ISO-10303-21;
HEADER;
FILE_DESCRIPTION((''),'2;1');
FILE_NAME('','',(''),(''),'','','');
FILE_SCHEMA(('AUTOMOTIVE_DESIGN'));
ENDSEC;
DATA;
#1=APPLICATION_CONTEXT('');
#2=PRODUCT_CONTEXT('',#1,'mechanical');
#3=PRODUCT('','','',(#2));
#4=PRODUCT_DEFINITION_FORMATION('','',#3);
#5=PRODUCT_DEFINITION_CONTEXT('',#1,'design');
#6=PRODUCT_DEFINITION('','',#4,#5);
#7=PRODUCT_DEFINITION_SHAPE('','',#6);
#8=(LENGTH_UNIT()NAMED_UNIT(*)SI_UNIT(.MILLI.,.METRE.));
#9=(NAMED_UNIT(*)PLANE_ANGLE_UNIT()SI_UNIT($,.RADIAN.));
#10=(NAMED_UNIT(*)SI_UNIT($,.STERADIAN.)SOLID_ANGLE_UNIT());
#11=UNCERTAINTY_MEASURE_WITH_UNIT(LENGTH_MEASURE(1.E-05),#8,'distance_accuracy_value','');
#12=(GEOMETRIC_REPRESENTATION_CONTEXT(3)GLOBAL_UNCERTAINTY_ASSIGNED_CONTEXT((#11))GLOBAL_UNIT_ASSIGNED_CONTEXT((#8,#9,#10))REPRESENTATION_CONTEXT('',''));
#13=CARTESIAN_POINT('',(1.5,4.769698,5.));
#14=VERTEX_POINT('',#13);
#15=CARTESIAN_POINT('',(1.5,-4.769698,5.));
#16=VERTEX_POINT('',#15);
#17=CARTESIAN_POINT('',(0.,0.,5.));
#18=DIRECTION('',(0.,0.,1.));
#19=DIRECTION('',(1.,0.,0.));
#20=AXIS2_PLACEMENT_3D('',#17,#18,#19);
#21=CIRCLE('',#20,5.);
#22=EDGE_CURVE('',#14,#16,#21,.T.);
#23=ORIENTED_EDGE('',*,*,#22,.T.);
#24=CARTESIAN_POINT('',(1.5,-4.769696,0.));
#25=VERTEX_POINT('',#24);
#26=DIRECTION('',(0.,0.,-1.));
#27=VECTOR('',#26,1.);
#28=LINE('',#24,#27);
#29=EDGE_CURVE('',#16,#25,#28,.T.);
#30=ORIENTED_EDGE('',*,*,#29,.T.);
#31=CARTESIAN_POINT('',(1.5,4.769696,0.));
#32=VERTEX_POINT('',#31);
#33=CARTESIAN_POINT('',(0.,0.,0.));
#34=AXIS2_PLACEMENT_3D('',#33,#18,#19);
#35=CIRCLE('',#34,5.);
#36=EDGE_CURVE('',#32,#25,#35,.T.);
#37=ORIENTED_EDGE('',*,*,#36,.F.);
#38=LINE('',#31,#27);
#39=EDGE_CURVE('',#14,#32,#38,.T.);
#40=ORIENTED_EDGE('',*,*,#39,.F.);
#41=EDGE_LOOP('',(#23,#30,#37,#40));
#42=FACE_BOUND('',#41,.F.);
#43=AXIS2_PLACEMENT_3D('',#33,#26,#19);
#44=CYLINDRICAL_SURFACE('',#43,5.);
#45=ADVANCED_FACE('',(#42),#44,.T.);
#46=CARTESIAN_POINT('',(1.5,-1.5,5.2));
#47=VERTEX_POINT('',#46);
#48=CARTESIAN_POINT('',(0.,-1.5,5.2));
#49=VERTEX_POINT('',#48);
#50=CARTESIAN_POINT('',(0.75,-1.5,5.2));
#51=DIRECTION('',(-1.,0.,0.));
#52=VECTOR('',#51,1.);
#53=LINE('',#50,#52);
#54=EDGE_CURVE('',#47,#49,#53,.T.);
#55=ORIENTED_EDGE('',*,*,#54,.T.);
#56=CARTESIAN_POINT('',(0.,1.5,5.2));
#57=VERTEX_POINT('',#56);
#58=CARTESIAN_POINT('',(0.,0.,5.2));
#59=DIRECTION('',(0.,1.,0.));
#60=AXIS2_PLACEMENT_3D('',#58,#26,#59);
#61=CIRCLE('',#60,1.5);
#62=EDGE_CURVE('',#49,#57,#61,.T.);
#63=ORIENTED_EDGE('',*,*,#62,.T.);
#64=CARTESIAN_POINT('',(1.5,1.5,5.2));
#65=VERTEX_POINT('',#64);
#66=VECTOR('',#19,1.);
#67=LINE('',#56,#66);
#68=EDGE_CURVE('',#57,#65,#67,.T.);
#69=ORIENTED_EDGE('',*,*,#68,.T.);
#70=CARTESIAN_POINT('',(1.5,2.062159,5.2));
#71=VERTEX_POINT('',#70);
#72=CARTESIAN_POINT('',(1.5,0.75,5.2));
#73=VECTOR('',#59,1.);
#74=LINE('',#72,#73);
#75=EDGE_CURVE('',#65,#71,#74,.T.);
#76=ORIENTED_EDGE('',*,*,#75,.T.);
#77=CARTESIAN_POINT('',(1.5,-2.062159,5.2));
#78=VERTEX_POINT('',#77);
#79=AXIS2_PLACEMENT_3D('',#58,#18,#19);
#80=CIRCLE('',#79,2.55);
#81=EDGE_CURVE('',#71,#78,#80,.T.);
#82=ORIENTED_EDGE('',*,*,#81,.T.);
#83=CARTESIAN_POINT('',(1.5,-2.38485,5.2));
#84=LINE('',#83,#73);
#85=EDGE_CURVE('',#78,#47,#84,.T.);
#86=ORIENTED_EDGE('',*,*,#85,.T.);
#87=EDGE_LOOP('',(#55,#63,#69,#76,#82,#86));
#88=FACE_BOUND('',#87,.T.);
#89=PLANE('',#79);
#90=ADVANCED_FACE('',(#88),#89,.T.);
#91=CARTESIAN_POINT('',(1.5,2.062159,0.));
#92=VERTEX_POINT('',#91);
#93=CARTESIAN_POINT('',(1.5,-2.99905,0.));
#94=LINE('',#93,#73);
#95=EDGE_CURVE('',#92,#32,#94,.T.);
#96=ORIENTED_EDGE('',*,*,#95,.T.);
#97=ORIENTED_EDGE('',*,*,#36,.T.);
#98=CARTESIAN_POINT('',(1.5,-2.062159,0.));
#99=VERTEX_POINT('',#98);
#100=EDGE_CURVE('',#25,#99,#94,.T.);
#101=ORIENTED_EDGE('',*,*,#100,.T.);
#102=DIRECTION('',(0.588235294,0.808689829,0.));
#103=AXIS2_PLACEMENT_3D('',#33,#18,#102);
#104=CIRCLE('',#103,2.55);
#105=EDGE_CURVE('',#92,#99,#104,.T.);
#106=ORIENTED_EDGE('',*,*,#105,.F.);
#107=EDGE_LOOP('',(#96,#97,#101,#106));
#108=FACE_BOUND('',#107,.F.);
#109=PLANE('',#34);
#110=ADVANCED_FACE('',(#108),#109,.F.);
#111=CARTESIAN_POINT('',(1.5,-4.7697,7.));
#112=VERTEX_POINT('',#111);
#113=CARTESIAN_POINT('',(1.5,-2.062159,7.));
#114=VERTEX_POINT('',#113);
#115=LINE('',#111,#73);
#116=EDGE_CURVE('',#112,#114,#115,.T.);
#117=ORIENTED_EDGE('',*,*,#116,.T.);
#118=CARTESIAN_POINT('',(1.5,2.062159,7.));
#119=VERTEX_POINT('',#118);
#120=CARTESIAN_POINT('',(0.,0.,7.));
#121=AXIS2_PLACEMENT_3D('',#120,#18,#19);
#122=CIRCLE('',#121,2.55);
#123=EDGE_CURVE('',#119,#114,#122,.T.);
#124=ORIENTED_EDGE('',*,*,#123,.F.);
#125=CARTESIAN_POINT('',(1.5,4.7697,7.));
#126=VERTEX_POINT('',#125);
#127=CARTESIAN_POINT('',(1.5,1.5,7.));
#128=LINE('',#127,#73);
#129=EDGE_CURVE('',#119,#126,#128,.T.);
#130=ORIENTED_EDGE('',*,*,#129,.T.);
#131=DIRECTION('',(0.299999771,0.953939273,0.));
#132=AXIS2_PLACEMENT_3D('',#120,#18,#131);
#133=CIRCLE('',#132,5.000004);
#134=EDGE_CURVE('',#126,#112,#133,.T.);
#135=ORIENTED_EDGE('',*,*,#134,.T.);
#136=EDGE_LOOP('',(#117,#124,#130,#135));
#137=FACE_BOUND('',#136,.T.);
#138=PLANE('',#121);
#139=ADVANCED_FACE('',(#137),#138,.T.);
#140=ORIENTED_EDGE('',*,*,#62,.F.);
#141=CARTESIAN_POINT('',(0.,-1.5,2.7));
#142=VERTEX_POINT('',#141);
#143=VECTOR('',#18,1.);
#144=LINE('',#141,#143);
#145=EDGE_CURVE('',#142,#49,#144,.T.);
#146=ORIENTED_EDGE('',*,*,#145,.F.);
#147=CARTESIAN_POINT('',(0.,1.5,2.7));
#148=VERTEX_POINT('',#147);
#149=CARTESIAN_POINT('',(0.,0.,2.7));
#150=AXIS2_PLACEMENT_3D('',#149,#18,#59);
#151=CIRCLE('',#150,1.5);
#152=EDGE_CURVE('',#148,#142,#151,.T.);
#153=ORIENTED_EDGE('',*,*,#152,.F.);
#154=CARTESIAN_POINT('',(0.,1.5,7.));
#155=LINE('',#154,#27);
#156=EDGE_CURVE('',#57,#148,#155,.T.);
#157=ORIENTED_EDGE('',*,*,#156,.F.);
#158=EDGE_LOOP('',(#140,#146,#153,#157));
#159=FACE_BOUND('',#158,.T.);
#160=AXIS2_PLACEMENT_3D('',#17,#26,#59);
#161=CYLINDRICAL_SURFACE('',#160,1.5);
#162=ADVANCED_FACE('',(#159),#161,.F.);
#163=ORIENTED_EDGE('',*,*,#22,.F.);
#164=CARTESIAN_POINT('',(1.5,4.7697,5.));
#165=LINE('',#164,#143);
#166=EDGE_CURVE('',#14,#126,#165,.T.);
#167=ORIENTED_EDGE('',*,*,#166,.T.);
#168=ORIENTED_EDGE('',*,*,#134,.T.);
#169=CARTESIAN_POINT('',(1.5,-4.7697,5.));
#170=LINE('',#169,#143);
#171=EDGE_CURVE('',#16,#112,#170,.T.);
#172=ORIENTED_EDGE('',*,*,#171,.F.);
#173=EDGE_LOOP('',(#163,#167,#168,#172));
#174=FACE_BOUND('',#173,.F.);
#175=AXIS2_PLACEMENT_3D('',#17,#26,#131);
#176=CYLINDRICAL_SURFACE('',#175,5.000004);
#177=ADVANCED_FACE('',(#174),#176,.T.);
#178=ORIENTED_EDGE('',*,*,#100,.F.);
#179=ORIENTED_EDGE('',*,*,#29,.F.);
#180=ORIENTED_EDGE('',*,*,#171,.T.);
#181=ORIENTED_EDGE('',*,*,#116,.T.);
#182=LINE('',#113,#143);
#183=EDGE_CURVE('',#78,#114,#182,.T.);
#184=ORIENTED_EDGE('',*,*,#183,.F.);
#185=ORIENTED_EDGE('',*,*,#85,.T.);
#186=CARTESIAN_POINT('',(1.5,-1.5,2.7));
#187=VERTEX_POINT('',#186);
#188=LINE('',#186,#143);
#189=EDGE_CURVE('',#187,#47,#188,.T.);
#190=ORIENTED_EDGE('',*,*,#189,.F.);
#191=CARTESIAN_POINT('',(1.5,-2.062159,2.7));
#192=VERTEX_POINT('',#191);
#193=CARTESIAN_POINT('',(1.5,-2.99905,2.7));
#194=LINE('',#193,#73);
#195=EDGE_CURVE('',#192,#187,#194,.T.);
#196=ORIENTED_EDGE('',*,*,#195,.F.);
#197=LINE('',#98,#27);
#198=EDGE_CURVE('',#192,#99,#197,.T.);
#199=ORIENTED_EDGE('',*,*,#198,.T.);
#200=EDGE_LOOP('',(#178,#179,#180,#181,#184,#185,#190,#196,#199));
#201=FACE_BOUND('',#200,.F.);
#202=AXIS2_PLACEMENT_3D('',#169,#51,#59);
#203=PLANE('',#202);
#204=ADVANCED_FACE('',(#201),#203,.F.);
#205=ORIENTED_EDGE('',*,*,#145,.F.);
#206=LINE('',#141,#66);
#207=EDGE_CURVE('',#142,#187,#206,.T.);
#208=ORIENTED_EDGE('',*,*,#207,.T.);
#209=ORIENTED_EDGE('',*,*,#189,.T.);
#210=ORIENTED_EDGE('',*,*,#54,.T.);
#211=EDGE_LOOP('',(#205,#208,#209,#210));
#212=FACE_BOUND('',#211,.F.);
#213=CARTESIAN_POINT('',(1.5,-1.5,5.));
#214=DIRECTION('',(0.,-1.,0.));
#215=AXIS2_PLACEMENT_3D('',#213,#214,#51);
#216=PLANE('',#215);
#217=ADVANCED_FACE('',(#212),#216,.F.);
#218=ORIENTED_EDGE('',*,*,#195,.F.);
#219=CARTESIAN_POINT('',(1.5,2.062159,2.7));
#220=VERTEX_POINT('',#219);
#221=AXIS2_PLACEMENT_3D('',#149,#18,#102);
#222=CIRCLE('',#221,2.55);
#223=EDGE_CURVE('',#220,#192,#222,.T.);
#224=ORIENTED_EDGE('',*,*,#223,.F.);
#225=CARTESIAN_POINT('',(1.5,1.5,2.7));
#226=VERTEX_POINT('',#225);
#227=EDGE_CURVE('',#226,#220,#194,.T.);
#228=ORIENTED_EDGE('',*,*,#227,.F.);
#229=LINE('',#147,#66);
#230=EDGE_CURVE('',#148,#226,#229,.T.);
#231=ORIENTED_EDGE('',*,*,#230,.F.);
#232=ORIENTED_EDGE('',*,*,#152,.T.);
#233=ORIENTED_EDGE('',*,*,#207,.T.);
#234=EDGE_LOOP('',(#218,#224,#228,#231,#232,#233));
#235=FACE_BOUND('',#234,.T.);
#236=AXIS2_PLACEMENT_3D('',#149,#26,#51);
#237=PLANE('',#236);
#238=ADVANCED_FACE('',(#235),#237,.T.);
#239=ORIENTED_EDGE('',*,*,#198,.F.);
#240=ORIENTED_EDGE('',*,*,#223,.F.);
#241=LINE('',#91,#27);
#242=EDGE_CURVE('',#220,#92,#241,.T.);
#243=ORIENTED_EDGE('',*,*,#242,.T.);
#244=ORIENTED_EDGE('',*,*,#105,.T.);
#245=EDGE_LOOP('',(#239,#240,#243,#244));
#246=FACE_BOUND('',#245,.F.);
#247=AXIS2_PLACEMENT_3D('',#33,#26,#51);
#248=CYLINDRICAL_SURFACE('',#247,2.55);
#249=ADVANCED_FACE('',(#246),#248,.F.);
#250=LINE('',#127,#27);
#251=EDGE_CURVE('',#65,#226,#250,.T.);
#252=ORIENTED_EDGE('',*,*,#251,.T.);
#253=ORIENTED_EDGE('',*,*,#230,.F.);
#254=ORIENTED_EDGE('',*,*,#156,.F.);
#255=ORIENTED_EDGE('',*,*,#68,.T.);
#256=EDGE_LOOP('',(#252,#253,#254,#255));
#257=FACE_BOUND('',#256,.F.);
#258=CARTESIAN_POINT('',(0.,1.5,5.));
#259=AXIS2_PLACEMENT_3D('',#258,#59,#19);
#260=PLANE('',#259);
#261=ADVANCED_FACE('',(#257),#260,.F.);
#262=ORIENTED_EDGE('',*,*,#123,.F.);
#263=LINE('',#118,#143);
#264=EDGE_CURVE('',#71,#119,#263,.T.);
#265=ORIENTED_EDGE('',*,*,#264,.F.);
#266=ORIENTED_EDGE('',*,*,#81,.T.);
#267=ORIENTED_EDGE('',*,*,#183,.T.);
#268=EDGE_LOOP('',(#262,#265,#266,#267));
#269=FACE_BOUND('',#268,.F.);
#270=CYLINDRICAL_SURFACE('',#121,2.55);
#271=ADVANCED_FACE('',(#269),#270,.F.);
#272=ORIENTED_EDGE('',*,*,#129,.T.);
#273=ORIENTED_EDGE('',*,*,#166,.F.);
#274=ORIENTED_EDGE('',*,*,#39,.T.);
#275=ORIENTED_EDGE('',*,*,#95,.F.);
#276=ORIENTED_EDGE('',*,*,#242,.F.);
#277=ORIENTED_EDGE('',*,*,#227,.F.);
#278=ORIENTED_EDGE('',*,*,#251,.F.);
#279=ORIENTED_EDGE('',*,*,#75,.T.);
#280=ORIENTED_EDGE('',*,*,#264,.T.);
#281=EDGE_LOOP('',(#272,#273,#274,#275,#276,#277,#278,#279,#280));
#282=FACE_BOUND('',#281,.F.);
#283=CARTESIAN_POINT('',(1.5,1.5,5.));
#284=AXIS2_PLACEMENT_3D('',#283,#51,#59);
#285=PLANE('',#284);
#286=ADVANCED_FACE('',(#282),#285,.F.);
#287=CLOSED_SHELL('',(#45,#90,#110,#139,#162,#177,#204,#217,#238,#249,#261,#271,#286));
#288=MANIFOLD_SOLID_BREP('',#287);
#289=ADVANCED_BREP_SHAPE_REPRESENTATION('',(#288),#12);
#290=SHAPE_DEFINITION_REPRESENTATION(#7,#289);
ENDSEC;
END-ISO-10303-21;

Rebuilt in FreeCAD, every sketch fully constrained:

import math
import FreeCAD as App
import Part
import Sketcher
from FreeCAD import Vector
Q = App.Units.Quantity


def add_polygon(sketch, points):
    """Adds a closed chain of lines whose ends are joined by coincident constraints."""
    first, n = sketch.GeometryCount, len(points)
    for a, b in zip(points, points[1:] + points[:1]):
        sketch.addGeometry(Part.LineSegment(App.Vector(*a, 0), App.Vector(*b, 0)), False)
    for i in range(n):
        sketch.addConstraint(Sketcher.Constraint("Coincident", first + i, 2, first + (i + 1) % n, 1))

doc = App.newDocument("Part")
body = doc.addObject("PartDesign::Body", "Body")

sketch1 = body.newObject("Sketcher::SketchObject", "Sketch")
sketch1.AttachmentSupport = (doc.getObject("XY_Plane"), [""])
sketch1.MapMode = "FlatFace"
sketch1.addGeometry(Part.Circle(Vector(0, 0, 0), Vector(0, 0, 1), 5), False)
sketch1.addConstraint([
    Sketcher.Constraint("Coincident", 0, 3, -1, 1),
    Sketcher.Constraint("Diameter", 0, Q("10 mm")),
])
pad1 = body.newObject("PartDesign::Pad", "Pad")
pad1.Profile = sketch1
pad1.Length = 5

sketch2 = body.newObject("Sketcher::SketchObject", "Sketch001")
sketch2.AttachmentSupport = (doc.getObject("XY_Plane"), [""])
sketch2.MapMode = "FlatFace"
sketch2.AttachmentOffset = App.Placement(Vector(0, 0, 5), App.Rotation())
sketch2.addGeometry([
    Part.ArcOfCircle(Part.Circle(Vector(0, 0, 0), Vector(0, 0, 1), 5), math.radians(-17), math.radians(17)),
    Part.LineSegment(Vector(4.8, 1.5, 0), Vector(0, 1.5, 0)),
    Part.ArcOfCircle(Part.Circle(Vector(0, 0, 0), Vector(0, 0, 1), 1.5), math.radians(90), math.radians(270)),
    Part.LineSegment(Vector(0, -1.5, 0), Vector(4.8, -1.5, 0)),
], False)
sketch2.addConstraint([
    Sketcher.Constraint("Coincident", 0, 2, 1, 1),
    Sketcher.Constraint("Tangent", 1, 2, 2, 1),
    Sketcher.Constraint("Tangent", 2, 2, 3, 1),
    Sketcher.Constraint("Coincident", 3, 2, 0, 1),
    Sketcher.Constraint("Horizontal", 1),
    Sketcher.Constraint("Horizontal", 3),
    Sketcher.Constraint("Coincident", 0, 3, -1, 1),
    Sketcher.Constraint("Coincident", 2, 3, -1, 1),
    Sketcher.Constraint("Radius", 2, Q("1.5 mm")),
    Sketcher.Constraint("Radius", 0, Q("5 mm")),
])
pocket1 = body.newObject("PartDesign::Pocket", "Pocket")
pocket1.Profile = sketch2
pocket1.Type = "ThroughAll"

sketch3 = body.newObject("Sketcher::SketchObject", "Sketch002")
sketch3.AttachmentSupport = (doc.getObject("XY_Plane"), [""])
sketch3.MapMode = "FlatFace"
sketch3.AttachmentOffset = App.Placement(Vector(0, 0, 5), App.Rotation())
add_polygon(sketch3, [(5.6, 5.5), (1.5, 5.5), (1.5, -6), (5.6, -6)])
sketch3.addConstraint([
    Sketcher.Constraint("Horizontal", 0),
    Sketcher.Constraint("Vertical", 1),
    Sketcher.Constraint("Horizontal", 2),
    Sketcher.Constraint("Vertical", 3),
    Sketcher.Constraint("DistanceX", -1, 1, 0, 2, Q("1.5 mm")),
    Sketcher.Constraint("DistanceX", 0, 2, 0, 1, Q("4.104 mm")),
    Sketcher.Constraint("DistanceY", 1, 2, 1, 1, Q("11.5227 mm")),
    Sketcher.Constraint("DistanceY", 1, 2, -1, 1, Q("5.998 mm")),
])
pocket2 = body.newObject("PartDesign::Pocket", "Pocket001")
pocket2.Profile = sketch3
pocket2.Type = "ThroughAll"

sketch4 = body.newObject("Sketcher::SketchObject", "Sketch003")
sketch4.AttachmentSupport = (doc.getObject("XY_Plane"), [""])
sketch4.MapMode = "FlatFace"
sketch4.addGeometry(Part.Circle(Vector(0, 0, 0), Vector(0, 0, 1), 2.5), False)
sketch4.addConstraint([
    Sketcher.Constraint("Coincident", 0, 3, -1, 1),
    Sketcher.Constraint("Diameter", 0, Q("5.1 mm")),
])
pocket3 = body.newObject("PartDesign::Pocket", "Pocket002")
pocket3.Profile = sketch4
pocket3.Length = 2.7
pocket3.Reversed = True

sketch5 = body.newObject("Sketcher::SketchObject", "Sketch004")
sketch5.AttachmentSupport = (doc.getObject("XY_Plane"), [""])
sketch5.MapMode = "FlatFace"
sketch5.AttachmentOffset = App.Placement(Vector(0, 0, 5), App.Rotation())
sketch5.addGeometry([
    Part.ArcOfCircle(Part.Circle(Vector(0, 0, 0), Vector(0, 0, 1), 5), math.radians(73), math.radians(287)),
    Part.LineSegment(Vector(1.5, -4.8, 0), Vector(1.5, -1.5, 0)),
    Part.LineSegment(Vector(1.5, -1.5, 0), Vector(0, -1.5, 0)),
    Part.ArcOfCircle(Part.Circle(Vector(0, 0, 0), Vector(0, 0, 1), 1.5), math.radians(90), math.radians(270)),
    Part.LineSegment(Vector(0, 1.5, 0), Vector(1.5, 1.5, 0)),
    Part.LineSegment(Vector(1.5, 1.5, 0), Vector(1.5, 4.8, 0)),
], False)
sketch5.addConstraint([
    Sketcher.Constraint("Coincident", 0, 2, 1, 1),
    Sketcher.Constraint("Coincident", 1, 2, 2, 1),
    Sketcher.Constraint("Tangent", 2, 2, 3, 2),
    Sketcher.Constraint("Tangent", 3, 1, 4, 1),
    Sketcher.Constraint("Coincident", 4, 2, 5, 1),
    Sketcher.Constraint("Coincident", 5, 2, 0, 1),
    Sketcher.Constraint("Vertical", 1),
    Sketcher.Constraint("Horizontal", 2),
    Sketcher.Constraint("Horizontal", 4),
    Sketcher.Constraint("Vertical", 5),
    Sketcher.Constraint("Coincident", 0, 3, -1, 1),
    Sketcher.Constraint("Coincident", 3, 3, -1, 1),
    Sketcher.Constraint("Vertical", 1, 2, 4, 2),
    Sketcher.Constraint("Radius", 0, Q("5 mm")),
    Sketcher.Constraint("Radius", 3, Q("1.5 mm")),
    Sketcher.Constraint("DistanceX", 2, 2, 2, 1, Q("1.5 mm")),
])
pad2 = body.newObject("PartDesign::Pad", "Pad001")
pad2.Profile = sketch5
pad2.Length = 2

sketch6 = body.newObject("Sketcher::SketchObject", "Sketch005")
sketch6.AttachmentSupport = (doc.getObject("XY_Plane"), [""])
sketch6.MapMode = "FlatFace"
sketch6.AttachmentOffset = App.Placement(Vector(0, 0, 7), App.Rotation())
sketch6.addGeometry(Part.Circle(Vector(0, 0, 0), Vector(0, 0, 1), 2.5), False)
sketch6.addConstraint([
    Sketcher.Constraint("Coincident", 0, 3, -1, 1),
    Sketcher.Constraint("Diameter", 0, Q("5.1 mm")),
])
pocket4 = body.newObject("PartDesign::Pocket", "Pocket003")
pocket4.Profile = sketch6
pocket4.Length = 1.8

doc.recompute()
